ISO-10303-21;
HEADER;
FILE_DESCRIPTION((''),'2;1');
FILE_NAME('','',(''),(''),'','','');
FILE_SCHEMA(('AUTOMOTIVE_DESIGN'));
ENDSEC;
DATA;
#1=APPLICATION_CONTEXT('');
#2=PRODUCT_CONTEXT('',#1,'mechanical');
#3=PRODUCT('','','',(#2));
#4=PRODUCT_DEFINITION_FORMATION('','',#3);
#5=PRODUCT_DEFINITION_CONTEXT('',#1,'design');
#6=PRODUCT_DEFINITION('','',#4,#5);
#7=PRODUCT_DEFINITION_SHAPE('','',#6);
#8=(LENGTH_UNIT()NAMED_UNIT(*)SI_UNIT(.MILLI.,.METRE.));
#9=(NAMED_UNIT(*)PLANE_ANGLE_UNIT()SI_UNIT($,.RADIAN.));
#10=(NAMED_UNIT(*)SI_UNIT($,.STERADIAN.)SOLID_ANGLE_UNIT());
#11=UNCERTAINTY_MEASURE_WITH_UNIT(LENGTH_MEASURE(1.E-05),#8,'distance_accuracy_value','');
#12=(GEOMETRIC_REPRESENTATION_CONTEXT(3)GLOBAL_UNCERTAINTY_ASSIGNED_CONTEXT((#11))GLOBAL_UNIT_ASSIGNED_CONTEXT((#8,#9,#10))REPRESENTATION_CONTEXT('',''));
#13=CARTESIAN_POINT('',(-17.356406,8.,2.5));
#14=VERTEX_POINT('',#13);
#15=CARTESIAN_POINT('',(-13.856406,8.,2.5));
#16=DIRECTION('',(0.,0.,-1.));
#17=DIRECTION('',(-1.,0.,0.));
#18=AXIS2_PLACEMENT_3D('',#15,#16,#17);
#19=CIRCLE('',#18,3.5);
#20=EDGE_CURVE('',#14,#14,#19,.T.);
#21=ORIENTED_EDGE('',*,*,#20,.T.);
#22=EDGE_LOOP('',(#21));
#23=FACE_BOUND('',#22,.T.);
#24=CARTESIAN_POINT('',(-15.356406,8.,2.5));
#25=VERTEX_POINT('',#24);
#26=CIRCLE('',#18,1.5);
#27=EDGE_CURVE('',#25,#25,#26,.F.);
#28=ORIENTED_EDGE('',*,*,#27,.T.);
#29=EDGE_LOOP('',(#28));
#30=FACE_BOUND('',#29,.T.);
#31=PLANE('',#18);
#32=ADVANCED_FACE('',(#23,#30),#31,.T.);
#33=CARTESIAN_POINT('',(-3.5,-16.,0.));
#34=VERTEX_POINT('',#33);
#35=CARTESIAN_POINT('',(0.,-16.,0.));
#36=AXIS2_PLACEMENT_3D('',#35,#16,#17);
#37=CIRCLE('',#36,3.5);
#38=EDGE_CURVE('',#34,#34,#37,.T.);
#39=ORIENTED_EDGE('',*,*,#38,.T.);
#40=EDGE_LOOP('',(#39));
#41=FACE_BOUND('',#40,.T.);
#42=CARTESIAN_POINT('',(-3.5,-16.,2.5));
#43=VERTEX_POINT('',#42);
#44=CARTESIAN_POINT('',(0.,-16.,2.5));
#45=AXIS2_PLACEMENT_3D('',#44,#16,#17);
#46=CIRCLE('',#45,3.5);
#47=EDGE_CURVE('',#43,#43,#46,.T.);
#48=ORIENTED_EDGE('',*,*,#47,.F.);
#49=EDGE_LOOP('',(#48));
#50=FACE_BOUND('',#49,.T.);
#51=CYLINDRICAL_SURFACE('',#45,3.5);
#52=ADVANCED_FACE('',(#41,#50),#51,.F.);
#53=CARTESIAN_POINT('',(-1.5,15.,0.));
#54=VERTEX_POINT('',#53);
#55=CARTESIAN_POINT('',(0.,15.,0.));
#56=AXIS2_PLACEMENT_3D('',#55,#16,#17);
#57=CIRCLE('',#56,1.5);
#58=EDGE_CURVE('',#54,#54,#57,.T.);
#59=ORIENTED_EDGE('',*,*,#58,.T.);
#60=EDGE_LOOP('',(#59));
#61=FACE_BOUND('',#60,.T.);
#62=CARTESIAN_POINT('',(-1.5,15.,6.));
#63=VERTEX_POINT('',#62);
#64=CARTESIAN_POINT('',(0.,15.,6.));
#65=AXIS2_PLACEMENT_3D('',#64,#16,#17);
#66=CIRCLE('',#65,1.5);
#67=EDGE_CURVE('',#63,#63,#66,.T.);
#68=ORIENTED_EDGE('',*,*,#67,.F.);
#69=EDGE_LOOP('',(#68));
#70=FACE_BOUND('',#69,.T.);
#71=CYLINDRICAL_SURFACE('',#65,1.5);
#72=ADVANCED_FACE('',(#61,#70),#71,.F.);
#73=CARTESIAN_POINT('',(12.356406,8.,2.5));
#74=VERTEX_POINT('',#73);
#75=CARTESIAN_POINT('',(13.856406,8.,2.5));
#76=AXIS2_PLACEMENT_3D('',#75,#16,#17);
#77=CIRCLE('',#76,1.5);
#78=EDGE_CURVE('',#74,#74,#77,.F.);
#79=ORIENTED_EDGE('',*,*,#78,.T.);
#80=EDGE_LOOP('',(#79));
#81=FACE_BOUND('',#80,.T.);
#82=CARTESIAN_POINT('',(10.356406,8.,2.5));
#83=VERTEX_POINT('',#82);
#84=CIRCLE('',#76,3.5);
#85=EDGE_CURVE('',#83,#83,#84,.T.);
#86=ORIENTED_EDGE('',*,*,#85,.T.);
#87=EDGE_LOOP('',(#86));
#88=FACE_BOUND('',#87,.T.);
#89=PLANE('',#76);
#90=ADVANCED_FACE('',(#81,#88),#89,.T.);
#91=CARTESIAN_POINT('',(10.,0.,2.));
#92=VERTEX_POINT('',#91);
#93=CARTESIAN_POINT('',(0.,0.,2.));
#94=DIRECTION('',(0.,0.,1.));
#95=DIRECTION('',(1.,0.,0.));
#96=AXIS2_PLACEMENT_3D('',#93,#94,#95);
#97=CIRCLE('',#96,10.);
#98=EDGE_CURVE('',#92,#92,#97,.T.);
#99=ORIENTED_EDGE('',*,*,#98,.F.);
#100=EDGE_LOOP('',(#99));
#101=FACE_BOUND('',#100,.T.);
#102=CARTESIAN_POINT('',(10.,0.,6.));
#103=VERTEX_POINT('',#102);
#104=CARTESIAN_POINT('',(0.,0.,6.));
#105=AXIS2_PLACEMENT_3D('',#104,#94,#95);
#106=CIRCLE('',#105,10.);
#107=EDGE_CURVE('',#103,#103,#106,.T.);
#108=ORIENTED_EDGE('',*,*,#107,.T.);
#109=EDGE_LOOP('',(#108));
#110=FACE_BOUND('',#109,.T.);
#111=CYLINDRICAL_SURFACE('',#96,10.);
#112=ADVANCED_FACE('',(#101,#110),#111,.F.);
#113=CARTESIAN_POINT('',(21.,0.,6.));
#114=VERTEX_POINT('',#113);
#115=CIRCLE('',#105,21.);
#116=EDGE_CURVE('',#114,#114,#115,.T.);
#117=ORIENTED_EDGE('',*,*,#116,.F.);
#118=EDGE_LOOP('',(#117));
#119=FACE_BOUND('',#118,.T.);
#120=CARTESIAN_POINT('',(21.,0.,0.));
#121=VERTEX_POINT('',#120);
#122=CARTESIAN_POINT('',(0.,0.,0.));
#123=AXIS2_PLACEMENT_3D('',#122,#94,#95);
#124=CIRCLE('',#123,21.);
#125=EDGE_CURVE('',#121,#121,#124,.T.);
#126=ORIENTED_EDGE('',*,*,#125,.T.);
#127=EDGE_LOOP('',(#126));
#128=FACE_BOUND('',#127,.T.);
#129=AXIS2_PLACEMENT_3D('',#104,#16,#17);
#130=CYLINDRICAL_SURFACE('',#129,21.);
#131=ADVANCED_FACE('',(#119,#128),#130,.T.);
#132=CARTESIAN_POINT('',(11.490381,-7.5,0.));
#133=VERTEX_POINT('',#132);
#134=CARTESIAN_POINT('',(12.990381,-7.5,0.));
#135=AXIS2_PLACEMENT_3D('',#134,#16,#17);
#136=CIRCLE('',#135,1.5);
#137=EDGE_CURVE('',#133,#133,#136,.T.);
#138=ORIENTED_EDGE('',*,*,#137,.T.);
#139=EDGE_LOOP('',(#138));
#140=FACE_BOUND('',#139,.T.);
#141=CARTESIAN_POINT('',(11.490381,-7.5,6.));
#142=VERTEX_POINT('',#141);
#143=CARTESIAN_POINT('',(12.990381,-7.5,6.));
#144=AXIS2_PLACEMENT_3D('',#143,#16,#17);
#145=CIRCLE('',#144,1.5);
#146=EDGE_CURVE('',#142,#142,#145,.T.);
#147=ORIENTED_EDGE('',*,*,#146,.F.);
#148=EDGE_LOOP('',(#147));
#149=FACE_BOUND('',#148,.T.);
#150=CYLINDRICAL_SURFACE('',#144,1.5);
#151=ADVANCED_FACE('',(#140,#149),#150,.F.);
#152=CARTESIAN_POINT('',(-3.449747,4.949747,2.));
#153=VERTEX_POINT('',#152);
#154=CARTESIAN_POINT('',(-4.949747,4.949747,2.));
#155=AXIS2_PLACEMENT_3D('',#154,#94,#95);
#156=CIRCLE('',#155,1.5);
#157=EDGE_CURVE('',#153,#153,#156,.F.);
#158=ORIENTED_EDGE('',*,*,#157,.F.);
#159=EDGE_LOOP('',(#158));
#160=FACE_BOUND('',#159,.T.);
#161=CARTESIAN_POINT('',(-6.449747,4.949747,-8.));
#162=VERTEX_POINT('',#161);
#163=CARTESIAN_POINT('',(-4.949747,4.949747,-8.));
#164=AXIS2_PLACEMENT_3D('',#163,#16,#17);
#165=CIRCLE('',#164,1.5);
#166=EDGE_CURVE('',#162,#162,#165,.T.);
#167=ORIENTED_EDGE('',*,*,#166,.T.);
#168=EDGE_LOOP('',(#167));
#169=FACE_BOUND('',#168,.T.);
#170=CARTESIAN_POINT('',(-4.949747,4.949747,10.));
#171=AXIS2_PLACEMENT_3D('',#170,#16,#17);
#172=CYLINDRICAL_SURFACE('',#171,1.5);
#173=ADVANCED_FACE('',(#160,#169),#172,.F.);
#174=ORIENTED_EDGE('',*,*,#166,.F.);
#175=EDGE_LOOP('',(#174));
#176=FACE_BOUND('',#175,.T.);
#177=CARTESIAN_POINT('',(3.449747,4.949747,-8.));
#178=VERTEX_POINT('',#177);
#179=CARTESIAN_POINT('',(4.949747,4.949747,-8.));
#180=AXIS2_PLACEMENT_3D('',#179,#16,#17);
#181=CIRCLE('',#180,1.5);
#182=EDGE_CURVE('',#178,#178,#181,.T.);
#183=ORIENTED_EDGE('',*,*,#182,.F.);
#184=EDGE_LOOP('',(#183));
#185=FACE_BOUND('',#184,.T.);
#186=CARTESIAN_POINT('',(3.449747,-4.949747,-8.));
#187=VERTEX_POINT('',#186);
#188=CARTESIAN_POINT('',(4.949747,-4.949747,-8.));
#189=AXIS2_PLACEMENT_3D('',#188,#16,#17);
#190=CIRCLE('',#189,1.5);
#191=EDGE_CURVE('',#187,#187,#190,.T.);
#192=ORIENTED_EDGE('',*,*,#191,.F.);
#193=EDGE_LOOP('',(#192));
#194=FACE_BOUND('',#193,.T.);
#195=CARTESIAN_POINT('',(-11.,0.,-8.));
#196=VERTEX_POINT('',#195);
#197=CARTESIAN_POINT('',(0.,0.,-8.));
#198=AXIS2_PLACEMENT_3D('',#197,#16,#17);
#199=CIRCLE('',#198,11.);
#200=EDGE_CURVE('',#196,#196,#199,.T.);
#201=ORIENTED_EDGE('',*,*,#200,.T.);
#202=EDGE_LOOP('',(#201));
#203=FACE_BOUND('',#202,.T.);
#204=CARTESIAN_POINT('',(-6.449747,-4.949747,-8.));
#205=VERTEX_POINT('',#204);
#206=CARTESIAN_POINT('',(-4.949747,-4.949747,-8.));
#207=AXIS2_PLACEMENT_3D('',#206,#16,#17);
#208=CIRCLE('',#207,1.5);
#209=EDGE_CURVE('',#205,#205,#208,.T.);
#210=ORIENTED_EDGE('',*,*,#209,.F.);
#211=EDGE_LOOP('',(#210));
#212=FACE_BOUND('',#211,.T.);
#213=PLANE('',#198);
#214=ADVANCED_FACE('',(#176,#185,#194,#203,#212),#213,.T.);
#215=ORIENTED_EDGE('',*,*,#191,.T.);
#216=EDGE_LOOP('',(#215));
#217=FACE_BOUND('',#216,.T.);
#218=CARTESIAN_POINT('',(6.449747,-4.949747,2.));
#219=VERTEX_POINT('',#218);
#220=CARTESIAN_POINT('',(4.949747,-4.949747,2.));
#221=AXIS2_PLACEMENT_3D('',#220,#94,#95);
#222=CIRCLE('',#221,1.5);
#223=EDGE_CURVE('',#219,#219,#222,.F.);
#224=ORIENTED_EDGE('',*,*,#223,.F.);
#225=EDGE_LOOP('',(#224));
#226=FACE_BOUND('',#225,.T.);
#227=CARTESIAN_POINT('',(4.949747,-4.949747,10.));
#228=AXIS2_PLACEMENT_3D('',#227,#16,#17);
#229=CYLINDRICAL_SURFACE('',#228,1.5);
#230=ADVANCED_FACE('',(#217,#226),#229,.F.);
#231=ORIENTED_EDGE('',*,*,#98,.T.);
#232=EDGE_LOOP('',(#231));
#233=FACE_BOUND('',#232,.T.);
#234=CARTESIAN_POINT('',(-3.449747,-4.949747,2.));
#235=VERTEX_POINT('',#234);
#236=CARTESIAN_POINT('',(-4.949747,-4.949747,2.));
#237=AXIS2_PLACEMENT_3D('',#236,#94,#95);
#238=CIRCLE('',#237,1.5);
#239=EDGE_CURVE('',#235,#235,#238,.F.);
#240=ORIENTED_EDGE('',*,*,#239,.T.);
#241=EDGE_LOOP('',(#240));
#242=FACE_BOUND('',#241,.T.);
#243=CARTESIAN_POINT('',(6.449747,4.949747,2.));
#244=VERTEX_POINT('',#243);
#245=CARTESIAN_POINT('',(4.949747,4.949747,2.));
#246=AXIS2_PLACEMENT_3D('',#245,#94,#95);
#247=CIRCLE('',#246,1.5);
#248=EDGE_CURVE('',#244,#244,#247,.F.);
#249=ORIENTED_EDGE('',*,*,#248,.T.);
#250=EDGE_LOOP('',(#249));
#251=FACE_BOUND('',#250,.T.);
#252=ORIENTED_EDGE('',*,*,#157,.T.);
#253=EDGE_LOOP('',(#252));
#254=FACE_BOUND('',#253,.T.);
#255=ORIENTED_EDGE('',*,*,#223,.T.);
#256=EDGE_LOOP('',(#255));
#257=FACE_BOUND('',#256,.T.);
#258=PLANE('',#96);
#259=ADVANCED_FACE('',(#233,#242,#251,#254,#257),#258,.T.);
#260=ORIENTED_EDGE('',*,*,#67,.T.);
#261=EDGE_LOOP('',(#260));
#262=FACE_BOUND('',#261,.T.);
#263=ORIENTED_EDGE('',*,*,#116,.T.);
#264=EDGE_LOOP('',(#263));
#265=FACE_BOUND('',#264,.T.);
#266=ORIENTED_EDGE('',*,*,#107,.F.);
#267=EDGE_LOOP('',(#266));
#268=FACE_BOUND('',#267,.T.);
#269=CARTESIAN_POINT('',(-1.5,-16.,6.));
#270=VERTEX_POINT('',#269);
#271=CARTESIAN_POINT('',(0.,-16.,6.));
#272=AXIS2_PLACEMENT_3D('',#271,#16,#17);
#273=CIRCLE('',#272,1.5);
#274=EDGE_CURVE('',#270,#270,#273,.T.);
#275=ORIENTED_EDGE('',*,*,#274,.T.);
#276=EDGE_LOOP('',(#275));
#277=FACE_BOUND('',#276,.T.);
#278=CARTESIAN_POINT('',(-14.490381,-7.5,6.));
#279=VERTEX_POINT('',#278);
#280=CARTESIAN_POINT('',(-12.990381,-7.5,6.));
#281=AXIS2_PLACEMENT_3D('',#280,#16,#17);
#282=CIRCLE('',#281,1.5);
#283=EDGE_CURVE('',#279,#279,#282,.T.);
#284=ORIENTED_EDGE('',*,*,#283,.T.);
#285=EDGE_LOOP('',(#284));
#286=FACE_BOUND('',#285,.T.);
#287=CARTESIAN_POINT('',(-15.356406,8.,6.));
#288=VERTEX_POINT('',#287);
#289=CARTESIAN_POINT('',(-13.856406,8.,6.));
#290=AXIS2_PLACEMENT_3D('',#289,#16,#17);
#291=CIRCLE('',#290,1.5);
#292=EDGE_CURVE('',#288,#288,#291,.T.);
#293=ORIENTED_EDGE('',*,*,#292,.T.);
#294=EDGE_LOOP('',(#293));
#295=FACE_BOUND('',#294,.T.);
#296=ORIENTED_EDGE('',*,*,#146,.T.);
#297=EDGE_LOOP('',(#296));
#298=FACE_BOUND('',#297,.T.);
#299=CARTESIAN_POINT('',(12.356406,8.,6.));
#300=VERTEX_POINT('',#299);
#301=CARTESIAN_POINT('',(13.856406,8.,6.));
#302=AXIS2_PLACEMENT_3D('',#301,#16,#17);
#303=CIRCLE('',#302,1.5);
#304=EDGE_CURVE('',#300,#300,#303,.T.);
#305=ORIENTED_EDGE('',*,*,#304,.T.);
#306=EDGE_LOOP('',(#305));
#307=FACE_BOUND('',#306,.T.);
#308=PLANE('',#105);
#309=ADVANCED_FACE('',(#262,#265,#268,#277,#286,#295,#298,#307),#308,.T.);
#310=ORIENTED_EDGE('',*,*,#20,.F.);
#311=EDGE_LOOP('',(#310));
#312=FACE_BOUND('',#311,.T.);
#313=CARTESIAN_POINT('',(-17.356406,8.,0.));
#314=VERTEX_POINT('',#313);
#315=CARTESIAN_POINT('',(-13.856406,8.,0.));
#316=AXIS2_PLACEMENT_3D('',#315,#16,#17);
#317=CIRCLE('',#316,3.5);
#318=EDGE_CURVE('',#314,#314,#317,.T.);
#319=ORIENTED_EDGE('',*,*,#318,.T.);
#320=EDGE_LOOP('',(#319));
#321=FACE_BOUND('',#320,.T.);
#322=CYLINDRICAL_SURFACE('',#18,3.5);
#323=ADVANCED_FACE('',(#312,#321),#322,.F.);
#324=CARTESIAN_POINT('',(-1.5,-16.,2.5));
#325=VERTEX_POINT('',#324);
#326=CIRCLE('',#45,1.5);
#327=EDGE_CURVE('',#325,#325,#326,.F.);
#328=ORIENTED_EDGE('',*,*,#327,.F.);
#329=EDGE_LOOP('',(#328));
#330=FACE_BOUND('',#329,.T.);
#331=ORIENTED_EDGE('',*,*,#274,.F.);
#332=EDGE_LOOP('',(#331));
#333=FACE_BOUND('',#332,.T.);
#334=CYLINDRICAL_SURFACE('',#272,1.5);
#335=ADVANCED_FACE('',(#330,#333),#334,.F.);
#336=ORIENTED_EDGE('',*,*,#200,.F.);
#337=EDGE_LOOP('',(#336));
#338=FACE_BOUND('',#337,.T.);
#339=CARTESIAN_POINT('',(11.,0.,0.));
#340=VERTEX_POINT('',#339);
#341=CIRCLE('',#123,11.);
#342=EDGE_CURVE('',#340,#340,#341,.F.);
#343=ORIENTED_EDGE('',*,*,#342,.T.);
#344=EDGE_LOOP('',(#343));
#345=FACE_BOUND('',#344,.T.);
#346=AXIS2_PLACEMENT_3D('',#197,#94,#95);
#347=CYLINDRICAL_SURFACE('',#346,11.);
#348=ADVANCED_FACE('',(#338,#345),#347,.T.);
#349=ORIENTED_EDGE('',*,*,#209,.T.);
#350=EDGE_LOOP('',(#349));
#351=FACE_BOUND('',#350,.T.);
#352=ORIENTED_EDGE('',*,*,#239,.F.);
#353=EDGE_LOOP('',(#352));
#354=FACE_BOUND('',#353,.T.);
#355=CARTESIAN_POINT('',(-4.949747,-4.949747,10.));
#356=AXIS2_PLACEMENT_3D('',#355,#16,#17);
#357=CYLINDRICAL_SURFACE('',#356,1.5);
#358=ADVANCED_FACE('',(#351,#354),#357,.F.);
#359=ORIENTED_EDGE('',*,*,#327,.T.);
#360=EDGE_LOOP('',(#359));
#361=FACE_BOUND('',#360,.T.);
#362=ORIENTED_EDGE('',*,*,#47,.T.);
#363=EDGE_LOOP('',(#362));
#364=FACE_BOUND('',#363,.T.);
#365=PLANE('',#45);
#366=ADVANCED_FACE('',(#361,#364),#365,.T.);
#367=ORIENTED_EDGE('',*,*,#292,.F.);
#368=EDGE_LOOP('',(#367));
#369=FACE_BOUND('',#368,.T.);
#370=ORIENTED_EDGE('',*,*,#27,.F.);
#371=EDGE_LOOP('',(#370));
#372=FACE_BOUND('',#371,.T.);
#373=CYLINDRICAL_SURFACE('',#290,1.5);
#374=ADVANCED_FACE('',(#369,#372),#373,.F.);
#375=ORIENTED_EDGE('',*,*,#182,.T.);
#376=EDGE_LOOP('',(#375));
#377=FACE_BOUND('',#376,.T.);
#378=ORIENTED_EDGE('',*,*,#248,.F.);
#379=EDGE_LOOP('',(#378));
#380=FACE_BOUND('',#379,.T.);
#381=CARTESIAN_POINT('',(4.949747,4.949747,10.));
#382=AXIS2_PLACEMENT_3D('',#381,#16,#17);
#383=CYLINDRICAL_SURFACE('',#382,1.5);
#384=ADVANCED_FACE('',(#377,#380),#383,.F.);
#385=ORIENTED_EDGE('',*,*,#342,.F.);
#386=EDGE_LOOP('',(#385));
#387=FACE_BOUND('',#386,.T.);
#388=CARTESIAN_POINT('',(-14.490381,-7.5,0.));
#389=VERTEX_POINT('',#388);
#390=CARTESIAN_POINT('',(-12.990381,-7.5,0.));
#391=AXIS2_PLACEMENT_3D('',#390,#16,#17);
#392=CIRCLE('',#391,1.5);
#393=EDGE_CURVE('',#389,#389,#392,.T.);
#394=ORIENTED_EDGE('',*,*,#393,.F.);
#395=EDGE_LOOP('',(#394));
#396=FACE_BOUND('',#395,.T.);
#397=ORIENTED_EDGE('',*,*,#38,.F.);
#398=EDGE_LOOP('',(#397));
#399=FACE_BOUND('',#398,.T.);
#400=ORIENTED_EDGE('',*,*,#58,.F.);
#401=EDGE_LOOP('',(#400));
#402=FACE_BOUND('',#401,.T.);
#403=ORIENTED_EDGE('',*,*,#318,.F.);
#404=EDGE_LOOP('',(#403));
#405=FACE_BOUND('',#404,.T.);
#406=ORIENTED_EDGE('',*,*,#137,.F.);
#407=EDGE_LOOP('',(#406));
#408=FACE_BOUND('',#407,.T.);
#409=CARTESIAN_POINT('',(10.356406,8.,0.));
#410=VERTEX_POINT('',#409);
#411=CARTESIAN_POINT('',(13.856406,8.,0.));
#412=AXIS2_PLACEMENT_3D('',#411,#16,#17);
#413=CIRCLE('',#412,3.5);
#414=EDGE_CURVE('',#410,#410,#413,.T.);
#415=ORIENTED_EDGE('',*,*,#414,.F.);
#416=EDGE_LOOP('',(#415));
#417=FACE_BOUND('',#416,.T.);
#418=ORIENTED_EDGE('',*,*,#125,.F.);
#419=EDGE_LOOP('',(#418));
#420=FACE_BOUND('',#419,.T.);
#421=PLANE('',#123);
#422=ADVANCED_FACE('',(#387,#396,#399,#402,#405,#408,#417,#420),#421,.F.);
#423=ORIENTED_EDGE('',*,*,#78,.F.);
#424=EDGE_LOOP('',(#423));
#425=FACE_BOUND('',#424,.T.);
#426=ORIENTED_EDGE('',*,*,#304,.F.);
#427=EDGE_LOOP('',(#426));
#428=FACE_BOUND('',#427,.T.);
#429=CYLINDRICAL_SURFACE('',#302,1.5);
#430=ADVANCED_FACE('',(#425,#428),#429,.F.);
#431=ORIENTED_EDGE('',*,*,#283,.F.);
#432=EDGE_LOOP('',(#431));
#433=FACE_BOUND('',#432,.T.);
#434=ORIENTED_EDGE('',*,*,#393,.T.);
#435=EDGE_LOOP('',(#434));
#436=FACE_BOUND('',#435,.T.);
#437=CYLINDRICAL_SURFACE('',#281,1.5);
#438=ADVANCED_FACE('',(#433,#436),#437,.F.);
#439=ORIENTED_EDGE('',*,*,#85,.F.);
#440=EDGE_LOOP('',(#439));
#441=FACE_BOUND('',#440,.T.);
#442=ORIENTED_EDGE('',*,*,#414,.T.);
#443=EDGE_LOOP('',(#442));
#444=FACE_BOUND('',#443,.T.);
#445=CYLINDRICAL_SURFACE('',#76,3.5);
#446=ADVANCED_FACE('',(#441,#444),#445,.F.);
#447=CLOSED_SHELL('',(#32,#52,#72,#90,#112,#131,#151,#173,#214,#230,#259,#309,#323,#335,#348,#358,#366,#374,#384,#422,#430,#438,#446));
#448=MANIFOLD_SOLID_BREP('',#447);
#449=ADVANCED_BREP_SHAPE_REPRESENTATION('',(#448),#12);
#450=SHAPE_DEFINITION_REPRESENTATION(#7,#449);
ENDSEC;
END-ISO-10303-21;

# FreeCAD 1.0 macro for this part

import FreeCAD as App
import Part
import Sketcher
from FreeCAD import Vector
Q = App.Units.Quantity

doc = App.newDocument("Part")
body = doc.addObject("PartDesign::Body", "Body")

# Sketch on XY plane
sketch1 = body.newObject("Sketcher::SketchObject", "Sketch")
sketch1.AttachmentSupport = (doc.getObject("XY_Plane"), [""])
sketch1.MapMode = "FlatFace"
sketch1.addGeometry(Part.Circle(Vector(0, 0, 0), Vector(0, 0, 1), 21), False)
sketch1.addConstraint([
    Sketcher.Constraint("Coincident", 0, 3, -1, 1),
    Sketcher.Constraint("Diameter", 0, Q("42 mm")),
])
pad1 = body.newObject("PartDesign::Pad", "Pad")
pad1.Profile = sketch1
pad1.Length = 6

# Sketch on XY plane
sketch2 = body.newObject("Sketcher::SketchObject", "Sketch001")
sketch2.AttachmentSupport = (doc.getObject("XY_Plane"), [""])
sketch2.MapMode = "FlatFace"
sketch2.addGeometry([
    Part.Circle(Vector(0, 15, 0), Vector(0, 0, 1), 1.5),  # 0
    Part.Circle(Vector(-13, -7.5, 0), Vector(0, 0, 1), 1.5),  # 1
    Part.Circle(Vector(13, -7.5, 0), Vector(0, 0, 1), 1.5),  # 2
    Part.Circle(Vector(-13.9, 8, 0), Vector(0, 0, 1), 1.5),  # 3
    Part.Circle(Vector(0, -16, 0), Vector(0, 0, 1), 1.5),  # 4
    Part.Circle(Vector(13.9, 8, 0), Vector(0, 0, 1), 1.5),  # 5
], False)
sketch2.addConstraint([
    Sketcher.Constraint("Equal", 0, 1),
    Sketcher.Constraint("Equal", 1, 2),
    Sketcher.Constraint("Equal", 2, 3),
    Sketcher.Constraint("Equal", 3, 4),
    Sketcher.Constraint("Equal", 4, 5),
    Sketcher.Constraint("Symmetric", 1, 3, 2, 3, -2),
    Sketcher.Constraint("Symmetric", 3, 3, 5, 3, -2),
    Sketcher.Constraint("PointOnObject", 0, 3, -2),
    Sketcher.Constraint("PointOnObject", 4, 3, -2),
    Sketcher.Constraint("Diameter", 0, Q("3 mm")),
    Sketcher.Constraint("DistanceY", -1, 1, 0, 3, Q("15 mm")),
    Sketcher.Constraint("DistanceY", -1, 1, 3, 3, Q("8 mm")),
    Sketcher.Constraint("DistanceY", 4, 3, -1, 1, Q("16 mm")),
    Sketcher.Constraint("DistanceY", 1, 3, -1, 1, Q("7.5 mm")),
    Sketcher.Constraint("DistanceX", 1, 3, -1, 1, Q("12.990381 mm")),
    Sketcher.Constraint("DistanceX", 3, 3, -1, 1, Q("13.856406 mm")),
])
pocket1 = body.newObject("PartDesign::Pocket", "Pocket")
pocket1.Profile = sketch2
pocket1.Length = 6
pocket1.Reversed = True

# Sketch on XY plane
sketch3 = body.newObject("Sketcher::SketchObject", "Sketch002")
sketch3.AttachmentSupport = (doc.getObject("XY_Plane"), [""])
sketch3.MapMode = "FlatFace"
sketch3.addGeometry(Part.Circle(Vector(0, 0, 0), Vector(0, 0, 1), 11), False)
sketch3.addConstraint([
    Sketcher.Constraint("Coincident", 0, 3, -1, 1),
    Sketcher.Constraint("Diameter", 0, Q("22 mm")),
])
pad2 = body.newObject("PartDesign::Pad", "Pad001")
pad2.Profile = sketch3
pad2.Length = 8
pad2.Reversed = True

# Sketch on XY plane
sketch4 = body.newObject("Sketcher::SketchObject", "Sketch003")
sketch4.AttachmentSupport = (doc.getObject("XY_Plane"), [""])
sketch4.MapMode = "FlatFace"
sketch4.addGeometry([
    Part.Circle(Vector(4.9, 4.9, 0), Vector(0, 0, 1), 1.5),
    Part.Circle(Vector(-4.9, 4.9, 0), Vector(0, 0, 1), 1.5),
    Part.Circle(Vector(-4.9, -4.9, 0), Vector(0, 0, 1), 1.5),
    Part.Circle(Vector(4.9, -4.9, 0), Vector(0, 0, 1), 1.5),
], False)
sketch4.addConstraint([
    Sketcher.Constraint("Equal", 0, 1),
    Sketcher.Constraint("Equal", 1, 2),
    Sketcher.Constraint("Equal", 2, 3),
    Sketcher.Constraint("Symmetric", 0, 3, 2, 3, -1, 1),
    Sketcher.Constraint("Symmetric", 1, 3, 3, 3, -1, 1),
    Sketcher.Constraint("Symmetric", 0, 3, 1, 3, -2),
    Sketcher.Constraint("Diameter", 0, Q("3 mm")),
    Sketcher.Constraint("DistanceX", -1, 1, 0, 3, Q("4.949747 mm")),
    Sketcher.Constraint("DistanceY", -1, 1, 0, 3, Q("4.949747 mm")),
])
pocket2 = body.newObject("PartDesign::Pocket", "Pocket001")
pocket2.Profile = sketch4
pocket2.Length = 20
pocket2.Midplane = True

# Sketch on XY plane
sketch5 = body.newObject("Sketcher::SketchObject", "Sketch004")
sketch5.AttachmentSupport = (doc.getObject("XY_Plane"), [""])
sketch5.MapMode = "FlatFace"
sketch5.AttachmentOffset = App.Placement(Vector(0, 0, 6), App.Rotation())
sketch5.addGeometry(Part.Circle(Vector(0, 0, 0), Vector(0, 0, 1), 10), False)
sketch5.addConstraint([
    Sketcher.Constraint("Coincident", 0, 3, -1, 1),
    Sketcher.Constraint("Diameter", 0, Q("20 mm")),
])
pocket3 = body.newObject("PartDesign::Pocket", "Pocket002")
pocket3.Profile = sketch5
pocket3.Length = 4

# Sketch on XY plane
sketch6 = body.newObject("Sketcher::SketchObject", "Sketch005")
sketch6.AttachmentSupport = (doc.getObject("XY_Plane"), [""])
sketch6.MapMode = "FlatFace"
sketch6.addGeometry([
    Part.Circle(Vector(13.9, 8, 0), Vector(0, 0, 1), 3.5),
    Part.Circle(Vector(-13.9, 8, 0), Vector(0, 0, 1), 3.5),
    Part.Circle(Vector(0, -16, 0), Vector(0, 0, 1), 3.5),
], False)
sketch6.addConstraint([
    Sketcher.Constraint("Equal", 0, 1),
    Sketcher.Constraint("Equal", 1, 2),
    Sketcher.Constraint("Symmetric", 0, 3, 1, 3, -2),
    Sketcher.Constraint("PointOnObject", 2, 3, -2),
    Sketcher.Constraint("Diameter", 0, Q("7 mm")),
    Sketcher.Constraint("DistanceY", -1, 1, 0, 3, Q("8 mm")),
    Sketcher.Constraint("DistanceY", 2, 3, -1, 1, Q("16 mm")),
    Sketcher.Constraint("DistanceX", -1, 1, 0, 3, Q("13.856406 mm")),
])
pocket4 = body.newObject("PartDesign::Pocket", "Pocket003")
pocket4.Profile = sketch6
pocket4.Length = 2.5
pocket4.Reversed = True

doc.recompute()
